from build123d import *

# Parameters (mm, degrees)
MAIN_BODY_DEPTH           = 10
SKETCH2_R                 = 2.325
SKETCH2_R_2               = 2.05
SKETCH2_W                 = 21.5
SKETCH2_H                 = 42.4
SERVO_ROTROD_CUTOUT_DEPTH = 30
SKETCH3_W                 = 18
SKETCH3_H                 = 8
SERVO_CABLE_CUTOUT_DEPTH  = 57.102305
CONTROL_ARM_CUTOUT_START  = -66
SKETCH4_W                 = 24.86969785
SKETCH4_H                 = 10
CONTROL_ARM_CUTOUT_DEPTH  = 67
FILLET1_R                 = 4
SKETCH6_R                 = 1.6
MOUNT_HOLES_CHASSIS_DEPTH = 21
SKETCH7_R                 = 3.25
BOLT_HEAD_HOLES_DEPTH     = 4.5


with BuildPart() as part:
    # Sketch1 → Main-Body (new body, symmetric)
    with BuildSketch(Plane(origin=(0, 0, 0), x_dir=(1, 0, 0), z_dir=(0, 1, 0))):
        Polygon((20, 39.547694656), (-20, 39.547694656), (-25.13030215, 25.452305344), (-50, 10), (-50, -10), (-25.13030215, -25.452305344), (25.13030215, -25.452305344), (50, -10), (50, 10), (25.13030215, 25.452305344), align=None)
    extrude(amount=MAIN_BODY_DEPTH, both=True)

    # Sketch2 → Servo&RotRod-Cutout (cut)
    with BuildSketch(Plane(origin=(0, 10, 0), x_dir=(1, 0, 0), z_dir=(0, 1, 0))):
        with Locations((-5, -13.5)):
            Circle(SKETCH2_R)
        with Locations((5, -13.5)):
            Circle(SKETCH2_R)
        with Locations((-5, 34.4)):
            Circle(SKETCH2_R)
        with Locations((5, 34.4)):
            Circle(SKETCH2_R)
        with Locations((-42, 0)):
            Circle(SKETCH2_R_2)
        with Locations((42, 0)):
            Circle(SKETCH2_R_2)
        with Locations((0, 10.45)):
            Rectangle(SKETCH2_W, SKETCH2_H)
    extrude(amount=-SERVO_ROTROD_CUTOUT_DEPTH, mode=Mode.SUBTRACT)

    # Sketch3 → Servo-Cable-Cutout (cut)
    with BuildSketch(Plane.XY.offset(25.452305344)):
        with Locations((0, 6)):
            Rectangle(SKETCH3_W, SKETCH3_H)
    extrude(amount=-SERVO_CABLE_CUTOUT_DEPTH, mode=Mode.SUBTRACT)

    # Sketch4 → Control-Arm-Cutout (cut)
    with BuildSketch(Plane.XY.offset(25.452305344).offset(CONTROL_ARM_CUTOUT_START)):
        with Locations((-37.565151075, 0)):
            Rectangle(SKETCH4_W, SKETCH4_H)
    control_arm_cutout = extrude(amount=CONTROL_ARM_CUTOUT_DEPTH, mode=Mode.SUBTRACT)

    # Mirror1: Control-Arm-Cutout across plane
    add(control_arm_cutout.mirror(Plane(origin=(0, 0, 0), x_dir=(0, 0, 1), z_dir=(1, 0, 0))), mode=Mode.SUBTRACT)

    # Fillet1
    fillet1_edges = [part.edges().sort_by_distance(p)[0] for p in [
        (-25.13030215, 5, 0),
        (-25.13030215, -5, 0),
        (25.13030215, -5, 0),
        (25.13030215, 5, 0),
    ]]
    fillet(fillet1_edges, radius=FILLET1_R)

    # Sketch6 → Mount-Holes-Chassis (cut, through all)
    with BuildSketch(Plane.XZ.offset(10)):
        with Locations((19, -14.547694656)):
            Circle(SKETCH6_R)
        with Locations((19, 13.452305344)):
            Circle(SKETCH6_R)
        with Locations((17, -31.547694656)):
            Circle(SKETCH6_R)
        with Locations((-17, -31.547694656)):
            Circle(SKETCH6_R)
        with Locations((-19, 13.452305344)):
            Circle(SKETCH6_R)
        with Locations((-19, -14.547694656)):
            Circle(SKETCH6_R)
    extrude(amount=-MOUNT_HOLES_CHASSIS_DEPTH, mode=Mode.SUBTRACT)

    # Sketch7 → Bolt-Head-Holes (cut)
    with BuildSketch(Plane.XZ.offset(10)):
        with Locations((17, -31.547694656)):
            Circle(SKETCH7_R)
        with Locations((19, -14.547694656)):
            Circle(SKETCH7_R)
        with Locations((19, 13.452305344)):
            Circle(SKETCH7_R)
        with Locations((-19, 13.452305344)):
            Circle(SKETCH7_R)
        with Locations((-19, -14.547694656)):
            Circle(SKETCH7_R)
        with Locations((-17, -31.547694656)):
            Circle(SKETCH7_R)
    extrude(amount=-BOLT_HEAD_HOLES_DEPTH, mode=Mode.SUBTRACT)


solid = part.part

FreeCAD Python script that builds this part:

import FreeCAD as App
import Part
import Sketcher
Q = App.Units.Quantity


def edges_at(feature, points):
    """Names of the edges that pass closest to the given points."""
    edges = feature.Shape.Edges
    near = lambda p: min(range(len(edges)), key=lambda i: edges[i].distToShape(Part.Vertex(*p))[0])
    return sorted({f"Edge{near(p) + 1}" for p in points})

doc = App.newDocument("Part")
body = doc.addObject("PartDesign::Body", "Body")

sketch1 = doc.addObject("Sketcher::SketchObject", "Sketch")
body.addObject(sketch1)
sketch1.AttachmentSupport = (doc.XZ_Plane, [""])
sketch1.MapMode = "FlatFace"
sketch1.addGeometry(Part.LineSegment(App.Vector(20, -40, 0), App.Vector(-20, -40, 0)), False)
sketch1.addGeometry(Part.LineSegment(App.Vector(-20, -40, 0), App.Vector(-25, -25, 0)), False)
sketch1.addGeometry(Part.LineSegment(App.Vector(-25, -25, 0), App.Vector(-50, -10, 0)), False)
sketch1.addGeometry(Part.LineSegment(App.Vector(-50, -10, 0), App.Vector(-50, 10, 0)), False)
sketch1.addGeometry(Part.LineSegment(App.Vector(-50, 10, 0), App.Vector(-25, 25, 0)), False)
sketch1.addGeometry(Part.LineSegment(App.Vector(-25, 25, 0), App.Vector(25, 25, 0)), False)
sketch1.addGeometry(Part.LineSegment(App.Vector(25, 25, 0), App.Vector(50, 10, 0)), False)
sketch1.addGeometry(Part.LineSegment(App.Vector(50, 10, 0), App.Vector(50, -10, 0)), False)
sketch1.addGeometry(Part.LineSegment(App.Vector(50, -10, 0), App.Vector(25, -25, 0)), False)
sketch1.addGeometry(Part.LineSegment(App.Vector(25, -25, 0), App.Vector(20, -40, 0)), False)
sketch1.addConstraint(Sketcher.Constraint("Coincident", 0, 2, 1, 1))
sketch1.addConstraint(Sketcher.Constraint("Coincident", 1, 2, 2, 1))
sketch1.addConstraint(Sketcher.Constraint("Coincident", 2, 2, 3, 1))
sketch1.addConstraint(Sketcher.Constraint("Coincident", 3, 2, 4, 1))
sketch1.addConstraint(Sketcher.Constraint("Coincident", 4, 2, 5, 1))
sketch1.addConstraint(Sketcher.Constraint("Coincident", 5, 2, 6, 1))
sketch1.addConstraint(Sketcher.Constraint("Coincident", 6, 2, 7, 1))
sketch1.addConstraint(Sketcher.Constraint("Coincident", 7, 2, 8, 1))
sketch1.addConstraint(Sketcher.Constraint("Coincident", 8, 2, 9, 1))
sketch1.addConstraint(Sketcher.Constraint("Coincident", 9, 2, 0, 1))
sketch1.addConstraint(Sketcher.Constraint("Horizontal", 0))
sketch1.addConstraint(Sketcher.Constraint("Vertical", 3))
sketch1.addConstraint(Sketcher.Constraint("Horizontal", 5))
sketch1.addConstraint(Sketcher.Constraint("Vertical", 7))
sketch1.addConstraint(Sketcher.Constraint("Symmetric", 1, 2, 5, 2, -1, 1))
sketch1.addConstraint(Sketcher.Constraint("Symmetric", 2, 2, 6, 2, -1, 1))
sketch1.addConstraint(Sketcher.Constraint("Symmetric", 4, 2, 8, 2, -1, 1))
sketch1.addConstraint(Sketcher.Constraint("Parallel", 4, 8))
sketch1.addConstraint(Sketcher.Constraint("Horizontal", 3, 2, 6, 2))
sketch1.addConstraint(Sketcher.Constraint("Vertical", 1, 2, 4, 2))
sketch1.addConstraint(Sketcher.Constraint("Equal", 1, 9))
sketch1.addConstraint(Sketcher.Constraint("DistanceX", 0, 2, 0, 1, 40.0))
sketch1.addConstraint(Sketcher.Constraint("DistanceY", 3, 1, 3, 2, 20.0))
sketch1.addConstraint(Sketcher.Constraint("Angle", 1, Q("110 deg")))
sketch1.addConstraint(Sketcher.Constraint("Distance", 1, 15.0))
sketch1.addConstraint(Sketcher.Constraint("DistanceX", 2, 2, -1, 1, 50.0))
sketch1.addConstraint(Sketcher.Constraint("DistanceY", 0, 2, 4, 2, 65.0))
pad1 = doc.addObject("PartDesign::Pad", "Pad")
body.addObject(pad1)
pad1.Profile = sketch1
pad1.Length = 20
pad1.Midplane = True

sketch2 = doc.addObject("Sketcher::SketchObject", "Sketch001")
body.addObject(sketch2)
sketch2.AttachmentSupport = (doc.XZ_Plane, [""])
sketch2.MapMode = "FlatFace"
sketch2.AttachmentOffset = App.Placement(App.Vector(0, 0, -10), App.Rotation())
sketch2.addGeometry(Part.Circle(App.Vector(-5, 13.5, 0), App.Vector(0, 0, 1), 2.3), False)
sketch2.addGeometry(Part.Circle(App.Vector(5, 13.5, 0), App.Vector(0, 0, 1), 2.3), False)
sketch2.addGeometry(Part.Circle(App.Vector(-5, -34.4, 0), App.Vector(0, 0, 1), 2.3), False)
sketch2.addGeometry(Part.Circle(App.Vector(5, -34.4, 0), App.Vector(0, 0, 1), 2.3), False)
sketch2.addGeometry(Part.Circle(App.Vector(-42, 0, 0), App.Vector(0, 0, 1), 2), False)
sketch2.addGeometry(Part.Circle(App.Vector(42, 0, 0), App.Vector(0, 0, 1), 2), False)
sketch2.addGeometry(Part.LineSegment(App.Vector(-10.8, -31.6, 0), App.Vector(-10.8, 10.8, 0)), False)
sketch2.addGeometry(Part.LineSegment(App.Vector(-10.8, 10.8, 0), App.Vector(10.8, 10.8, 0)), False)
sketch2.addGeometry(Part.LineSegment(App.Vector(10.8, 10.8, 0), App.Vector(10.8, -31.6, 0)), False)
sketch2.addGeometry(Part.LineSegment(App.Vector(10.8, -31.6, 0), App.Vector(-10.8, -31.6, 0)), False)
sketch2.addConstraint(Sketcher.Constraint("Coincident", 6, 2, 7, 1))
sketch2.addConstraint(Sketcher.Constraint("Coincident", 7, 2, 8, 1))
sketch2.addConstraint(Sketcher.Constraint("Coincident", 8, 2, 9, 1))
sketch2.addConstraint(Sketcher.Constraint("Coincident", 9, 2, 6, 1))
sketch2.addConstraint(Sketcher.Constraint("Vertical", 6))
sketch2.addConstraint(Sketcher.Constraint("Horizontal", 7))
sketch2.addConstraint(Sketcher.Constraint("Vertical", 8))
sketch2.addConstraint(Sketcher.Constraint("Horizontal", 9))
sketch2.addConstraint(Sketcher.Constraint("Equal", 0, 1))
sketch2.addConstraint(Sketcher.Constraint("Equal", 1, 2))
sketch2.addConstraint(Sketcher.Constraint("Equal", 2, 3))
sketch2.addConstraint(Sketcher.Constraint("Equal", 4, 5))
sketch2.addConstraint(Sketcher.Constraint("Symmetric", 4, 3, 5, 3, -1, 1))
sketch2.addConstraint(Sketcher.Constraint("Symmetric", 0, 3, 1, 3, -2))
sketch2.addConstraint(Sketcher.Constraint("Symmetric", 2, 3, 3, 3, -2))
sketch2.addConstraint(Sketcher.Constraint("PointOnObject", 4, 3, -1))
sketch2.addConstraint(Sketcher.Constraint("Vertical", 0, 3, 2, 3))
sketch2.addConstraint(Sketcher.Constraint("Diameter", 4, 4.1))
sketch2.addConstraint(Sketcher.Constraint("Diameter", 0, 4.65))
sketch2.addConstraint(Sketcher.Constraint("DistanceX", 7, 1, 7, 2, 21.5))
sketch2.addConstraint(Sketcher.Constraint("DistanceY", 6, 1, 6, 2, 42.4))
sketch2.addConstraint(Sketcher.Constraint("DistanceX", 0, 3, -1, 1, 5.0))
sketch2.addConstraint(Sketcher.Constraint("DistanceX", 4, 3, -1, 1, 42.0))
sketch2.addConstraint(Sketcher.Constraint("DistanceY", -1, 1, 0, 3, 13.5))
sketch2.addConstraint(Sketcher.Constraint("DistanceY", 2, 3, -1, 1, 34.4))
sketch2.addConstraint(Sketcher.Constraint("DistanceX", 6, 2, -1, 1, 10.75))
sketch2.addConstraint(Sketcher.Constraint("DistanceY", -1, 1, 6, 2, 10.75))
pocket1 = doc.addObject("PartDesign::Pocket", "Pocket")
body.addObject(pocket1)
pocket1.Profile = sketch2
pocket1.Length = 30
pocket1.Reversed = True

sketch3 = doc.addObject("Sketcher::SketchObject", "Sketch002")
body.addObject(sketch3)
sketch3.AttachmentSupport = (doc.XY_Plane, [""])
sketch3.MapMode = "FlatFace"
sketch3.AttachmentOffset = App.Placement(App.Vector(0, 0, 25.452305), App.Rotation())
sketch3.addGeometry(Part.LineSegment(App.Vector(-9, 10, 0), App.Vector(-9, 2, 0)), False)
sketch3.addGeometry(Part.LineSegment(App.Vector(-9, 2, 0), App.Vector(9, 2, 0)), False)
sketch3.addGeometry(Part.LineSegment(App.Vector(9, 2, 0), App.Vector(9, 10, 0)), False)
sketch3.addGeometry(Part.LineSegment(App.Vector(9, 10, 0), App.Vector(-9, 10, 0)), False)
sketch3.addConstraint(Sketcher.Constraint("Coincident", 0, 2, 1, 1))
sketch3.addConstraint(Sketcher.Constraint("Coincident", 1, 2, 2, 1))
sketch3.addConstraint(Sketcher.Constraint("Coincident", 2, 2, 3, 1))
sketch3.addConstraint(Sketcher.Constraint("Coincident", 3, 2, 0, 1))
sketch3.addConstraint(Sketcher.Constraint("Vertical", 0))
sketch3.addConstraint(Sketcher.Constraint("Horizontal", 1))
sketch3.addConstraint(Sketcher.Constraint("Vertical", 2))
sketch3.addConstraint(Sketcher.Constraint("Horizontal", 3))
sketch3.addConstraint(Sketcher.Constraint("DistanceX", 1, 1, 1, 2, 18.0))
sketch3.addConstraint(Sketcher.Constraint("DistanceY", 0, 2, 0, 1, 8.0))
sketch3.addConstraint(Sketcher.Constraint("DistanceX", 0, 2, -1, 1, 9.0))
sketch3.addConstraint(Sketcher.Constraint("DistanceY", -1, 1, 0, 2, 2.0))
pocket2 = doc.addObject("PartDesign::Pocket", "Pocket001")
body.addObject(pocket2)
pocket2.Profile = sketch3
pocket2.Length = 57.102305

sketch4 = doc.addObject("Sketcher::SketchObject", "Sketch003")
body.addObject(sketch4)
sketch4.AttachmentSupport = (doc.XY_Plane, [""])
sketch4.MapMode = "FlatFace"
sketch4.AttachmentOffset = App.Placement(App.Vector(0, 0, -40.547695), App.Rotation())
sketch4.addGeometry(Part.LineSegment(App.Vector(-50, 5, 0), App.Vector(-50, -5, 0)), False)
sketch4.addGeometry(Part.LineSegment(App.Vector(-50, -5, 0), App.Vector(-25, -5, 0)), False)
sketch4.addGeometry(Part.LineSegment(App.Vector(-25, -5, 0), App.Vector(-25, 5, 0)), False)
sketch4.addGeometry(Part.LineSegment(App.Vector(-25, 5, 0), App.Vector(-50, 5, 0)), False)
sketch4.addConstraint(Sketcher.Constraint("Coincident", 0, 2, 1, 1))
sketch4.addConstraint(Sketcher.Constraint("Coincident", 1, 2, 2, 1))
sketch4.addConstraint(Sketcher.Constraint("Coincident", 2, 2, 3, 1))
sketch4.addConstraint(Sketcher.Constraint("Coincident", 3, 2, 0, 1))
sketch4.addConstraint(Sketcher.Constraint("Vertical", 0))
sketch4.addConstraint(Sketcher.Constraint("Horizontal", 1))
sketch4.addConstraint(Sketcher.Constraint("Vertical", 2))
sketch4.addConstraint(Sketcher.Constraint("Horizontal", 3))
sketch4.addConstraint(Sketcher.Constraint("DistanceY", 0, 2, 0, 1, 10.0))
sketch4.addConstraint(Sketcher.Constraint("DistanceX", 0, 2, -1, 1, 50.0))
sketch4.addConstraint(Sketcher.Constraint("DistanceY", 0, 2, -1, 1, 5.0))
sketch4.addConstraint(Sketcher.Constraint("DistanceX", 1, 1, 1, 2, 24.869698))
pocket3 = doc.addObject("PartDesign::Pocket", "Pocket002")
body.addObject(pocket3)
pocket3.Profile = sketch4
pocket3.Length = 67
pocket3.Reversed = True
doc.recompute()

mirrored = doc.addObject("PartDesign::Mirrored", "Mirrored")
body.addObject(mirrored)
mirrored.Originals = [pocket3]
mirrored.MirrorPlane = (doc.YZ_Plane, [""])
body.Tip = mirrored
doc.recompute()

fillet = doc.addObject("PartDesign::Fillet", "Fillet")
body.addObject(fillet)
fillet.Base = (mirrored, edges_at(mirrored, [
    (-25.13, 5, 0),
    (-25.13, -5, 0),
    (25.13, -5, 0),
    (25.13, 5, 0),
]))
fillet.Radius = 4

sketch5 = doc.addObject("Sketcher::SketchObject", "Sketch004")
body.addObject(sketch5)
sketch5.AttachmentSupport = (doc.XZ_Plane, [""])
sketch5.MapMode = "FlatFace"
sketch5.AttachmentOffset = App.Placement(App.Vector(0, 0, 10), App.Rotation())
sketch5.addGeometry(Part.Circle(App.Vector(19, -14.5, 0), App.Vector(0, 0, 1), 1.6), False)
sketch5.addGeometry(Part.Circle(App.Vector(19, 13.5, 0), App.Vector(0, 0, 1), 1.6), False)
sketch5.addGeometry(Part.Circle(App.Vector(17, -31.5, 0), App.Vector(0, 0, 1), 1.6), False)
sketch5.addGeometry(Part.Circle(App.Vector(-17, -31.5, 0), App.Vector(0, 0, 1), 1.6), False)
sketch5.addGeometry(Part.Circle(App.Vector(-19, 13.5, 0), App.Vector(0, 0, 1), 1.6), False)
sketch5.addGeometry(Part.Circle(App.Vector(-19, -14.5, 0), App.Vector(0, 0, 1), 1.6), False)
sketch5.addConstraint(Sketcher.Constraint("Equal", 0, 1))
sketch5.addConstraint(Sketcher.Constraint("Equal", 1, 2))
sketch5.addConstraint(Sketcher.Constraint("Equal", 2, 3))
sketch5.addConstraint(Sketcher.Constraint("Equal", 3, 4))
sketch5.addConstraint(Sketcher.Constraint("Equal", 4, 5))
sketch5.addConstraint(Sketcher.Constraint("Symmetric", 2, 3, 3, 3, -2))
sketch5.addConstraint(Sketcher.Constraint("Symmetric", 1, 3, 4, 3, -2))
sketch5.addConstraint(Sketcher.Constraint("Symmetric", 0, 3, 5, 3, -2))
sketch5.addConstraint(Sketcher.Constraint("Vertical", 0, 3, 1, 3))
sketch5.addConstraint(Sketcher.Constraint("Diameter", 0, 3.2))
sketch5.addConstraint(Sketcher.Constraint("DistanceX", -1, 1, 0, 3, 19.0))
sketch5.addConstraint(Sketcher.Constraint("DistanceX", -1, 1, 2, 3, 17.0))
sketch5.addConstraint(Sketcher.Constraint("DistanceY", 0, 3, 1, 3, 28.0))
sketch5.addConstraint(Sketcher.Constraint("DistanceY", 2, 3, 0, 3, 17.0))
sketch5.addConstraint(Sketcher.Constraint("DistanceY", 0, 3, -1, 1, 14.547695))
pocket4 = doc.addObject("PartDesign::Pocket", "Pocket003")
body.addObject(pocket4)
pocket4.Profile = sketch5
pocket4.Type = "ThroughAll"

sketch6 = doc.addObject("Sketcher::SketchObject", "Sketch005")
body.addObject(sketch6)
sketch6.AttachmentSupport = (doc.XZ_Plane, [""])
sketch6.MapMode = "FlatFace"
sketch6.AttachmentOffset = App.Placement(App.Vector(0, 0, 10), App.Rotation())
sketch6.addGeometry(Part.Circle(App.Vector(17, -31.5, 0), App.Vector(0, 0, 1), 3.2), False)
sketch6.addGeometry(Part.Circle(App.Vector(19, -14.5, 0), App.Vector(0, 0, 1), 3.2), False)
sketch6.addGeometry(Part.Circle(App.Vector(19, 13.5, 0), App.Vector(0, 0, 1), 3.2), False)
sketch6.addGeometry(Part.Circle(App.Vector(-19, 13.5, 0), App.Vector(0, 0, 1), 3.2), False)
sketch6.addGeometry(Part.Circle(App.Vector(-19, -14.5, 0), App.Vector(0, 0, 1), 3.2), False)
sketch6.addGeometry(Part.Circle(App.Vector(-17, -31.5, 0), App.Vector(0, 0, 1), 3.2), False)
sketch6.addConstraint(Sketcher.Constraint("Equal", 0, 1))
sketch6.addConstraint(Sketcher.Constraint("Equal", 1, 2))
sketch6.addConstraint(Sketcher.Constraint("Equal", 2, 3))
sketch6.addConstraint(Sketcher.Constraint("Equal", 3, 4))
sketch6.addConstraint(Sketcher.Constraint("Equal", 4, 5))
sketch6.addConstraint(Sketcher.Constraint("Symmetric", 2, 3, 3, 3, -2))
sketch6.addConstraint(Sketcher.Constraint("Symmetric", 1, 3, 4, 3, -2))
sketch6.addConstraint(Sketcher.Constraint("Symmetric", 0, 3, 5, 3, -2))
sketch6.addConstraint(Sketcher.Constraint("Vertical", 1, 3, 2, 3))
sketch6.addConstraint(Sketcher.Constraint("Diameter", 0, 6.5))
sketch6.addConstraint(Sketcher.Constraint("DistanceX", -1, 1, 0, 3, 17.0))
sketch6.addConstraint(Sketcher.Constraint("DistanceX", -1, 1, 1, 3, 19.0))
sketch6.addConstraint(Sketcher.Constraint("DistanceY", 0, 3, 1, 3, 17.0))
sketch6.addConstraint(Sketcher.Constraint("DistanceY", 1, 3, 2, 3, 28.0))
sketch6.addConstraint(Sketcher.Constraint("DistanceY", 0, 3, -1, 1, 31.547695))
pocket5 = doc.addObject("PartDesign::Pocket", "Pocket004")
body.addObject(pocket5)
pocket5.Profile = sketch6
pocket5.Length = 4.5

doc.recompute()
